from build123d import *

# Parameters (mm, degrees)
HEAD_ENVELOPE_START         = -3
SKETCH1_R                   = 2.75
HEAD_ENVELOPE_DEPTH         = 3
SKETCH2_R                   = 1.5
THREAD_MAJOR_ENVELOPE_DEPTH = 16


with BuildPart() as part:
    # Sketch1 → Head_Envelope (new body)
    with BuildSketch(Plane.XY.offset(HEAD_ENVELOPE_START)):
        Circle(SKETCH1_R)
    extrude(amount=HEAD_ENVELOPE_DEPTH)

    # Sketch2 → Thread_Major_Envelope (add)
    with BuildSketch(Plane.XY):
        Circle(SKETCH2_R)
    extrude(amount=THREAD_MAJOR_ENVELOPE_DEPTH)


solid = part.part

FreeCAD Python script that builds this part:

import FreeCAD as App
import Part
import Sketcher

V = App.Vector
Q = App.Units.Quantity

doc = App.newDocument("Part")
body = doc.addObject("PartDesign::Body", "Body")

# Sketch on XY plane
sketch1 = doc.addObject("Sketcher::SketchObject", "Sketch")
body.addObject(sketch1)
sketch1.AttachmentSupport = (doc.XY_Plane, [""])
sketch1.MapMode = "FlatFace"
sketch1.AttachmentOffset = App.Placement(V(0, 0, -3), App.Rotation())
sketch1.addGeometry(Part.Circle(V(0, 0, 0), V(0, 0, 1), 2.75), False)
sketch1.addConstraint(Sketcher.Constraint("Coincident", 0, 3, -1, 1))
sketch1.addConstraint(Sketcher.Constraint("Diameter", 0, Q("5.5 mm")))
pad1 = doc.addObject("PartDesign::Pad", "Pad")
body.addObject(pad1)
pad1.Profile = sketch1
pad1.Length = 3

# Sketch on XY plane
sketch2 = doc.addObject("Sketcher::SketchObject", "Sketch001")
body.addObject(sketch2)
sketch2.AttachmentSupport = (doc.XY_Plane, [""])
sketch2.MapMode = "FlatFace"
sketch2.addGeometry(Part.Circle(V(0, 0, 0), V(0, 0, 1), 1.5), False)
sketch2.addConstraint(Sketcher.Constraint("Coincident", 0, 3, -1, 1))
sketch2.addConstraint(Sketcher.Constraint("Diameter", 0, Q("3 mm")))
pad2 = doc.addObject("PartDesign::Pad", "Pad001")
body.addObject(pad2)
pad2.Profile = sketch2
pad2.Length = 16

doc.recompute()
